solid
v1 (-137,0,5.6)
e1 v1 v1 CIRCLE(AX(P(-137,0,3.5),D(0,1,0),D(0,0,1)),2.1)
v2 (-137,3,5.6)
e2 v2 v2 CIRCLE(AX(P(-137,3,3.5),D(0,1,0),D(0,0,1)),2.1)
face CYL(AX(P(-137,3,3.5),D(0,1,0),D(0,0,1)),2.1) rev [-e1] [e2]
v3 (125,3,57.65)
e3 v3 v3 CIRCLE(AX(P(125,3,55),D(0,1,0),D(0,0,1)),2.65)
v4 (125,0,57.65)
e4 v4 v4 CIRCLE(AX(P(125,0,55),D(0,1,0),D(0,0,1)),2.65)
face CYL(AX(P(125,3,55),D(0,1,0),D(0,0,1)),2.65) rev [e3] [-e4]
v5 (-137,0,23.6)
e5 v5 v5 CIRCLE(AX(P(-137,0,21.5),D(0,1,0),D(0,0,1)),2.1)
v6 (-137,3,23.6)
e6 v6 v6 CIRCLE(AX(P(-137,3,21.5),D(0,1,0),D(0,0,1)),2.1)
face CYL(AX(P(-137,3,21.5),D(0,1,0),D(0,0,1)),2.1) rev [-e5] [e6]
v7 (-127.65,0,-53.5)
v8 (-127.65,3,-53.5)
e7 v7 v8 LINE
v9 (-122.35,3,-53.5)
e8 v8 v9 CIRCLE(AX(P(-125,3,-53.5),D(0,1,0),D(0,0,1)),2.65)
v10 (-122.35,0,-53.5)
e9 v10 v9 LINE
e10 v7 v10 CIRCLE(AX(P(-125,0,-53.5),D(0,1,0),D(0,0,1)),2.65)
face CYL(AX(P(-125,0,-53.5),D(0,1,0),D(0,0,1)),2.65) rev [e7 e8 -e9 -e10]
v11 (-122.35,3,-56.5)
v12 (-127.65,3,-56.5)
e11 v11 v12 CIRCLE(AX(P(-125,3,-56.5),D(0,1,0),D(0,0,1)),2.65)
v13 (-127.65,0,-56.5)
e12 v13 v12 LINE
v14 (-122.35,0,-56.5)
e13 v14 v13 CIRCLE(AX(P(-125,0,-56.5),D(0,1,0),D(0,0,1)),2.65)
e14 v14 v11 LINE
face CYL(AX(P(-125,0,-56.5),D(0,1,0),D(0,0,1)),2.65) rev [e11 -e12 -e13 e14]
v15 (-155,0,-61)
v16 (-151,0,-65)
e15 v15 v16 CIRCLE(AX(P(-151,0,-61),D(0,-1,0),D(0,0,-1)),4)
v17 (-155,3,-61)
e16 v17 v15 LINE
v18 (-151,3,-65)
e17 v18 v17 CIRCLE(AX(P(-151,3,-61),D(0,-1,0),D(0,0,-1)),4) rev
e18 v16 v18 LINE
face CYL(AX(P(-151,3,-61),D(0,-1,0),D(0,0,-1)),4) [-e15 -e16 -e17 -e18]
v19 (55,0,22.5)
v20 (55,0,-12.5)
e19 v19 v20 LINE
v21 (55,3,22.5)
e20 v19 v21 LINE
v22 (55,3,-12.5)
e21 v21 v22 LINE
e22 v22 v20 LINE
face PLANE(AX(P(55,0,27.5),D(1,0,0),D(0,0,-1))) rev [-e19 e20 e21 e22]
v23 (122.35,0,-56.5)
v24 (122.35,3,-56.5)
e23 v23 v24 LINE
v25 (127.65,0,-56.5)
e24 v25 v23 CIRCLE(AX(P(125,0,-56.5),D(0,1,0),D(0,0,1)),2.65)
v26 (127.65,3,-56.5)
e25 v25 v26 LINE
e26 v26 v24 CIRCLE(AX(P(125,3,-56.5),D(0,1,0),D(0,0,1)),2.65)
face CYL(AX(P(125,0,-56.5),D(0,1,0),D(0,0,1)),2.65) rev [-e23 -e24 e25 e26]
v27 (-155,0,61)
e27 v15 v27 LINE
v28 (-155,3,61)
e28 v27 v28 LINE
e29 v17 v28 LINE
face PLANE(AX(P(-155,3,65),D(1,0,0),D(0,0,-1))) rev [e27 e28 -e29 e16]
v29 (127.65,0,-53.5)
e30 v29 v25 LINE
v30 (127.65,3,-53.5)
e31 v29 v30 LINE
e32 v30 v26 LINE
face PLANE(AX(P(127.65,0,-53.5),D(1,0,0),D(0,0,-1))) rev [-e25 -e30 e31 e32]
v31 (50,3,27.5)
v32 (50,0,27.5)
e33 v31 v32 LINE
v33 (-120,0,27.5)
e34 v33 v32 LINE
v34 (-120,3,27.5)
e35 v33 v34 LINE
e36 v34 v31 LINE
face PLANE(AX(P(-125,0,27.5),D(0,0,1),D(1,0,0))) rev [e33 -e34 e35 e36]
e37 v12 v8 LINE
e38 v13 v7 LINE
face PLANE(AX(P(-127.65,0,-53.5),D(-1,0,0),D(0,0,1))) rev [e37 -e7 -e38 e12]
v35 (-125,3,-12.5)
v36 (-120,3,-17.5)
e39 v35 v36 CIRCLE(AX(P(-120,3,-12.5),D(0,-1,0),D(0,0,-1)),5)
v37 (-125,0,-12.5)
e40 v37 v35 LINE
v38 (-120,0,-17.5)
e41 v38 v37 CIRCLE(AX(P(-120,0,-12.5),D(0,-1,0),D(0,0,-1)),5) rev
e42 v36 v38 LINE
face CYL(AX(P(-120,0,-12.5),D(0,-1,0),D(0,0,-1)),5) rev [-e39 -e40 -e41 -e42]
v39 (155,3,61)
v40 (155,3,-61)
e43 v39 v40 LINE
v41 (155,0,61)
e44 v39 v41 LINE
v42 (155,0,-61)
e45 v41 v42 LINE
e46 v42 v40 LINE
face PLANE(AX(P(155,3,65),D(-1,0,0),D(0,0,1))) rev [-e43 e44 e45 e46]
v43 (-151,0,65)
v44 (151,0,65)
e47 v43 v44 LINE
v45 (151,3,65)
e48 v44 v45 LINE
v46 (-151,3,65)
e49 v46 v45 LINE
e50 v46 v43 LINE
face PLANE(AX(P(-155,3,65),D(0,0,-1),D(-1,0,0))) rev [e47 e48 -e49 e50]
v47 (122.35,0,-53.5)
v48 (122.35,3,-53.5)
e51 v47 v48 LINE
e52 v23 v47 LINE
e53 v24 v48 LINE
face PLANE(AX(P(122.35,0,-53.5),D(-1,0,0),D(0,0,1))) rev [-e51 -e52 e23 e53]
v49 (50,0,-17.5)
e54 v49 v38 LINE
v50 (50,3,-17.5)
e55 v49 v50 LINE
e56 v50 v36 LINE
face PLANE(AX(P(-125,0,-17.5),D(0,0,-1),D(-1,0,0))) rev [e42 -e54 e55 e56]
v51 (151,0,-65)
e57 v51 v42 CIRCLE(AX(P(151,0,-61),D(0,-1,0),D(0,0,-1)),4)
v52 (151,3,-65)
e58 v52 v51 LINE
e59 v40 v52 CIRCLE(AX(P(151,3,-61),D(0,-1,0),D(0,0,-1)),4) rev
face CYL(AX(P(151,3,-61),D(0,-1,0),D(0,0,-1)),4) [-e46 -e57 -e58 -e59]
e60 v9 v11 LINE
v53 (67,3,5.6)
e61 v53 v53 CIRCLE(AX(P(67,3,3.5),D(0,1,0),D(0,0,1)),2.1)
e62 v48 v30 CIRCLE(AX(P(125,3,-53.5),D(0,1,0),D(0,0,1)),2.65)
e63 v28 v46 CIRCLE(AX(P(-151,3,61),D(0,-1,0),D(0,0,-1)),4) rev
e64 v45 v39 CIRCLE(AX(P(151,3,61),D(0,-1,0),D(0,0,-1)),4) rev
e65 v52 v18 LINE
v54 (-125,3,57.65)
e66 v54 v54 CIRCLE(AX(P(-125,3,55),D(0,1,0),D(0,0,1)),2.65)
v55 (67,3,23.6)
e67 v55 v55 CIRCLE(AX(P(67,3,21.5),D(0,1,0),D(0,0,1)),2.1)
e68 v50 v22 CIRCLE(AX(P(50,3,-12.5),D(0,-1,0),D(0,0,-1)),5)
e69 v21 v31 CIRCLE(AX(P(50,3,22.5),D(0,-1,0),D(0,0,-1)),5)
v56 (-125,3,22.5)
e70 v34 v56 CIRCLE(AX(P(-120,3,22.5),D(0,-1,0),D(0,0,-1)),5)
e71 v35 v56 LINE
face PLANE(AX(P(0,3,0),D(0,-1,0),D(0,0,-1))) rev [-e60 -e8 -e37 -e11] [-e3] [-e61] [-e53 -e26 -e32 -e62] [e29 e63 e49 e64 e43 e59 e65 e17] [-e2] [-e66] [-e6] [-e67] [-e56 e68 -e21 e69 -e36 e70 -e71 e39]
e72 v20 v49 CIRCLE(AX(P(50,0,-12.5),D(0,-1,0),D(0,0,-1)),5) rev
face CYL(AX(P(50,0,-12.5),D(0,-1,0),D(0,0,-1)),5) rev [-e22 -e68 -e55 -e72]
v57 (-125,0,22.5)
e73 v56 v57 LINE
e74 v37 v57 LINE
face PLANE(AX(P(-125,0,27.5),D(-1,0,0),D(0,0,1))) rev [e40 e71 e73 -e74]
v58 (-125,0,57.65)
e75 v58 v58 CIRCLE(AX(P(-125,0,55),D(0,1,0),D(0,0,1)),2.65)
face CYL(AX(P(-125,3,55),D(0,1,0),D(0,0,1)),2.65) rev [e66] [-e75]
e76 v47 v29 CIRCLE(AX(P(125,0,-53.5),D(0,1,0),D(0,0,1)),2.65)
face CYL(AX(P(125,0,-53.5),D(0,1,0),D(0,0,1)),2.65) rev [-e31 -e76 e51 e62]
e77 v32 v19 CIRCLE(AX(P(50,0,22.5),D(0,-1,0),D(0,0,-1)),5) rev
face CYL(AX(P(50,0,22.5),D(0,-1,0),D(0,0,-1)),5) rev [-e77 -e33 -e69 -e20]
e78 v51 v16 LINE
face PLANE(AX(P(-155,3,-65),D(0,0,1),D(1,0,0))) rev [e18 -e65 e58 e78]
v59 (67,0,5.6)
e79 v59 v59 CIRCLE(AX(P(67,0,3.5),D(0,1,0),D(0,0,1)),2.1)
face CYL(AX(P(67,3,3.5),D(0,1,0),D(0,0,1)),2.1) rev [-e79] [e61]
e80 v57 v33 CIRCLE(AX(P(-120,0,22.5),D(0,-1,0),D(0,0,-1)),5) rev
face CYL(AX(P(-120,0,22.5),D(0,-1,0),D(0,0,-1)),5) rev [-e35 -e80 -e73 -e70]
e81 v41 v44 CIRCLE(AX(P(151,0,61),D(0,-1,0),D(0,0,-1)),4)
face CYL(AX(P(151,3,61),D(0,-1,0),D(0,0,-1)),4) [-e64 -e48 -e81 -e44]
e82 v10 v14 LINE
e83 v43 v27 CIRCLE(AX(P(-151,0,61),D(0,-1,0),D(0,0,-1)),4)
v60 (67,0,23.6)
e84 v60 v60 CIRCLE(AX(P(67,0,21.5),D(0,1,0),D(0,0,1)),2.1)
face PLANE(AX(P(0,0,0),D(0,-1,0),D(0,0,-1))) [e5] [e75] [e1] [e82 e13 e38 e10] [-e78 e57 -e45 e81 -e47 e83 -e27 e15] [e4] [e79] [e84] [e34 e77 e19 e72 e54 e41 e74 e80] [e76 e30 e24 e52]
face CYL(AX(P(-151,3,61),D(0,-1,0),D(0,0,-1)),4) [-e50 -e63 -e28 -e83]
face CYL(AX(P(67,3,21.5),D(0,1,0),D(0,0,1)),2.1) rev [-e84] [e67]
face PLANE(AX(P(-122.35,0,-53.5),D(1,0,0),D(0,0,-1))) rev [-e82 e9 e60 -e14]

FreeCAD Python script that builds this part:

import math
import FreeCAD as App
import Part
import Sketcher
from FreeCAD import Vector


def edges_at(feature, points):
    """Names of the edges that pass closest to the given points."""
    edges = feature.Shape.Edges
    near = lambda p: min(range(len(edges)), key=lambda i: edges[i].distToShape(Part.Vertex(*p))[0])
    return sorted({f"Edge{near(p) + 1}" for p in points})

doc = App.newDocument("Part")
params = doc.addObject("Spreadsheet::Sheet", "Params")
for row, (alias, value) in enumerate([
    ("sketch1_width", "310 mm"),
    ("sketch1_height", "130 mm"),
    ("pad1_length", "3 mm"),
    ("fillet_radius", "4 mm"),
    ("sketch2_diameter", "5.3 mm"),
    ("hole_diameter", "5.3 mm"),
    ("sketch3_width", "180 mm"),
    ("sketch3_height", "45 mm"),
    ("fillet2_radius", "5 mm"),
    ("sketch4_diameter", "4.2 mm"),
    ("hole2_diameter", "4.2 mm"),
    ("sketch5_height", "3 mm"),
    ("sketch5_radius", "2.65 mm"),
], start=1):
    params.set(f"A{row}", alias)
    params.set(f"B{row}", "=" + value)
    params.setAlias(f"B{row}", alias)

body = doc.addObject("PartDesign::Body", "Body")

# Sketch on XZ plane
sketch1 = body.newObject("Sketcher::SketchObject", "Sketch")
sketch1.AttachmentSupport = (doc.getObject("XZ_Plane"), [""])
sketch1.MapMode = "FlatFace"
sketch1.addGeometry([
    Part.LineSegment(Vector(-155, -65, 0), Vector(-155, 65, 0)),
    Part.LineSegment(Vector(-155, 65, 0), Vector(155, 65, 0)),
    Part.LineSegment(Vector(155, 65, 0), Vector(155, -65, 0)),
    Part.LineSegment(Vector(155, -65, 0), Vector(-155, -65, 0)),
], False)
sketch1.addConstraint([
    Sketcher.Constraint("Coincident", 0, 2, 1, 1),
    Sketcher.Constraint("Coincident", 1, 2, 2, 1),
    Sketcher.Constraint("Coincident", 2, 2, 3, 1),
    Sketcher.Constraint("Coincident", 3, 2, 0, 1),
    Sketcher.Constraint("Vertical", 0),
    Sketcher.Constraint("Horizontal", 1),
    Sketcher.Constraint("Vertical", 2),
    Sketcher.Constraint("Horizontal", 3),
    Sketcher.Constraint("Symmetric", 0, 2, 2, 2, -1, 1),
    Sketcher.Constraint("DistanceX", 1, 1, 1, 2, 310.0),
    Sketcher.Constraint("DistanceY", 0, 1, 0, 2, 130.0),
])
sketch1.setExpression("Constraints[9]", "Params.sketch1_width")
sketch1.setExpression("Constraints[10]", "Params.sketch1_height")
pad1 = body.newObject("PartDesign::Pad", "Pad")
pad1.Profile = sketch1
pad1.setExpression("Length", "Params.pad1_length")
pad1.Reversed = True
doc.recompute()

fillet = body.newObject("PartDesign::Fillet", "Fillet")
fillet.Base = (pad1, edges_at(pad1, [
    (155, 1.5, 65),
    (-155, 1.5, 65),
    (-155, 1.5, -65),
    (155, 1.5, -65),
]))
fillet.setExpression("Radius", "Params.fillet_radius")

# Sketch on XZ plane
sketch2 = body.newObject("Sketcher::SketchObject", "Sketch001")
sketch2.AttachmentSupport = (doc.getObject("XZ_Plane"), [""])
sketch2.MapMode = "FlatFace"
sketch2.AttachmentOffset = App.Placement(Vector(0, 0, -3), App.Rotation())
sketch2.addGeometry([
    Part.Circle(Vector(125, -55, 0), Vector(0, 0, 1), 2.65),
    Part.Circle(Vector(-125, 55, 0), Vector(0, 0, 1), 2.65),
    Part.Circle(Vector(-125, -55, 0), Vector(0, 0, 1), 2.65),
    Part.Circle(Vector(125, 55, 0), Vector(0, 0, 1), 2.65),
], False)
sketch2.addConstraint([
    Sketcher.Constraint("Equal", 0, 1),
    Sketcher.Constraint("Equal", 1, 2),
    Sketcher.Constraint("Equal", 2, 3),
    Sketcher.Constraint("Symmetric", 0, 3, 1, 3, -1, 1),
    Sketcher.Constraint("Symmetric", 2, 3, 3, 3, -1, 1),
    Sketcher.Constraint("Symmetric", 0, 3, 2, 3, -2),
    Sketcher.Constraint("Diameter", 0, 5.3),
    Sketcher.Constraint("DistanceX", -1, 1, 0, 3, 125.0),
    Sketcher.Constraint("DistanceY", 0, 3, -1, 1, 55.0),
])
sketch2.setExpression("Constraints[6]", "Params.sketch2_diameter")
doc.recompute()
hole = body.newObject("PartDesign::Hole", "Hole")
hole.Profile = sketch2
hole.ThreadType = "None"
hole.setExpression("Diameter", "Params.hole_diameter")
hole.DepthType = "ThroughAll"
hole.Reversed = True

# Sketch on XZ plane
sketch3 = body.newObject("Sketcher::SketchObject", "Sketch002")
sketch3.AttachmentSupport = (doc.getObject("XZ_Plane"), [""])
sketch3.MapMode = "FlatFace"
sketch3.AttachmentOffset = App.Placement(Vector(0, 0, -3), App.Rotation())
sketch3.addGeometry([
    Part.LineSegment(Vector(-125, -17.5, 0), Vector(-125, 27.5, 0)),
    Part.LineSegment(Vector(-125, 27.5, 0), Vector(55, 27.5, 0)),
    Part.LineSegment(Vector(55, 27.5, 0), Vector(55, -17.5, 0)),
    Part.LineSegment(Vector(55, -17.5, 0), Vector(-125, -17.5, 0)),
], False)
sketch3.addConstraint([
    Sketcher.Constraint("Coincident", 0, 2, 1, 1),
    Sketcher.Constraint("Coincident", 1, 2, 2, 1),
    Sketcher.Constraint("Coincident", 2, 2, 3, 1),
    Sketcher.Constraint("Coincident", 3, 2, 0, 1),
    Sketcher.Constraint("Vertical", 0),
    Sketcher.Constraint("Horizontal", 1),
    Sketcher.Constraint("Vertical", 2),
    Sketcher.Constraint("Horizontal", 3),
    Sketcher.Constraint("DistanceX", 1, 1, 1, 2, 180.0),
    Sketcher.Constraint("DistanceY", 0, 1, 0, 2, 45.0),
    Sketcher.Constraint("DistanceX", 0, 2, -1, 1, 125.0),
    Sketcher.Constraint("DistanceY", -1, 1, 0, 2, 27.5),
])
sketch3.setExpression("Constraints[8]", "Params.sketch3_width")
sketch3.setExpression("Constraints[9]", "Params.sketch3_height")
pocket1 = body.newObject("PartDesign::Pocket", "Pocket")
pocket1.Profile = sketch3
pocket1.Type = "ThroughAll"
pocket1.Reversed = True
doc.recompute()

fillet2 = body.newObject("PartDesign::Fillet", "Fillet001")
fillet2.Base = (pocket1, edges_at(pocket1, [
    (55, 1.5, -17.5),
    (55, 1.5, 27.5),
    (-125, 1.5, 27.5),
    (-125, 1.5, -17.5),
]))
fillet2.setExpression("Radius", "Params.fillet2_radius")

# Sketch on XZ plane
sketch4 = body.newObject("Sketcher::SketchObject", "Sketch003")
sketch4.AttachmentSupport = (doc.getObject("XZ_Plane"), [""])
sketch4.MapMode = "FlatFace"
sketch4.AttachmentOffset = App.Placement(Vector(0, 0, -3), App.Rotation())
sketch4.addGeometry([
    Part.Circle(Vector(67, 3.5, 0), Vector(0, 0, 1), 2.1),
    Part.Circle(Vector(-137, 21.5, 0), Vector(0, 0, 1), 2.1),
    Part.Circle(Vector(-137, 3.5, 0), Vector(0, 0, 1), 2.1),
    Part.Circle(Vector(67, 21.5, 0), Vector(0, 0, 1), 2.1),
], False)
sketch4.addConstraint([
    Sketcher.Constraint("Equal", 0, 1),
    Sketcher.Constraint("Equal", 1, 2),
    Sketcher.Constraint("Equal", 2, 3),
    Sketcher.Constraint("Horizontal", 0, 3, 2, 3),
    Sketcher.Constraint("Horizontal", 1, 3, 3, 3),
    Sketcher.Constraint("Vertical", 1, 3, 2, 3),
    Sketcher.Constraint("Vertical", 0, 3, 3, 3),
    Sketcher.Constraint("Diameter", 0, 4.2),
    Sketcher.Constraint("DistanceX", -1, 1, 0, 3, 67.0),
    Sketcher.Constraint("DistanceX", 1, 3, -1, 1, 137.0),
    Sketcher.Constraint("DistanceY", 0, 3, 1, 3, 18.0),
    Sketcher.Constraint("DistanceY", -1, 1, 0, 3, 3.5),
])
sketch4.setExpression("Constraints[7]", "Params.sketch4_diameter")
doc.recompute()
hole2 = body.newObject("PartDesign::Hole", "Hole001")
hole2.Profile = sketch4
hole2.ThreadType = "None"
hole2.setExpression("Diameter", "Params.hole2_diameter")
hole2.DepthType = "ThroughAll"
hole2.Reversed = True

# Sketch on XZ plane
sketch5 = body.newObject("Sketcher::SketchObject", "Sketch004")
sketch5.AttachmentSupport = (doc.getObject("XZ_Plane"), [""])
sketch5.MapMode = "FlatFace"
sketch5.AttachmentOffset = App.Placement(Vector(0, 0, -3), App.Rotation())
sketch5.addGeometry([
    Part.LineSegment(Vector(-127.65, -56.5, 0), Vector(-127.65, -53.5, 0)),  # 0
    Part.ArcOfCircle(Part.Circle(Vector(-125, -53.5, 0), Vector(0, 0, 1), 2.65), math.radians(0), math.radians(180)),  # 1
    Part.LineSegment(Vector(-122.35, -53.5, 0), Vector(-122.35, -56.5, 0)),  # 2
    Part.ArcOfCircle(Part.Circle(Vector(-125, -56.5, 0), Vector(0, 0, 1), 2.65), math.radians(180), math.radians(360)),  # 3
    Part.LineSegment(Vector(122.35, -56.5, 0), Vector(122.35, -53.5, 0)),  # 4
    Part.ArcOfCircle(Part.Circle(Vector(125, -53.5, 0), Vector(0, 0, 1), 2.65), math.radians(0), math.radians(180)),  # 5
    Part.LineSegment(Vector(127.65, -53.5, 0), Vector(127.65, -56.5, 0)),  # 6
    Part.ArcOfCircle(Part.Circle(Vector(125, -56.5, 0), Vector(0, 0, 1), 2.65), math.radians(180), math.radians(360)),  # 7
], False)
sketch5.addConstraint([
    Sketcher.Constraint("Tangent", 0, 2, 1, 2),
    Sketcher.Constraint("Tangent", 1, 1, 2, 1),
    Sketcher.Constraint("Tangent", 2, 2, 3, 2),
    Sketcher.Constraint("Tangent", 3, 1, 0, 1),
    Sketcher.Constraint("Tangent", 4, 2, 5, 2),
    Sketcher.Constraint("Tangent", 5, 1, 6, 1),
    Sketcher.Constraint("Tangent", 6, 2, 7, 2),
    Sketcher.Constraint("Tangent", 7, 1, 4, 1),
    Sketcher.Constraint("Vertical", 0),
    Sketcher.Constraint("Vertical", 2),
    Sketcher.Constraint("Vertical", 4),
    Sketcher.Constraint("Vertical", 6),
    Sketcher.Constraint("Equal", 3, 5),
    Sketcher.Constraint("Symmetric", 1, 3, 5, 3, -2),
    Sketcher.Constraint("Horizontal", 3, 3, 7, 3),
    Sketcher.Constraint("DistanceY", 0, 1, 0, 2, 3.0),
    Sketcher.Constraint("Radius", 1, 2.65),
    Sketcher.Constraint("DistanceX", 1, 3, -1, 1, 125.0),
    Sketcher.Constraint("DistanceY", 1, 3, -1, 1, 53.5),
])
sketch5.setExpression("Constraints[15]", "Params.sketch5_height")
sketch5.setExpression("Constraints[16]", "Params.sketch5_radius")
pocket2 = body.newObject("PartDesign::Pocket", "Pocket001")
pocket2.Profile = sketch5
pocket2.Type = "ThroughAll"
pocket2.Reversed = True

doc.recompute()
